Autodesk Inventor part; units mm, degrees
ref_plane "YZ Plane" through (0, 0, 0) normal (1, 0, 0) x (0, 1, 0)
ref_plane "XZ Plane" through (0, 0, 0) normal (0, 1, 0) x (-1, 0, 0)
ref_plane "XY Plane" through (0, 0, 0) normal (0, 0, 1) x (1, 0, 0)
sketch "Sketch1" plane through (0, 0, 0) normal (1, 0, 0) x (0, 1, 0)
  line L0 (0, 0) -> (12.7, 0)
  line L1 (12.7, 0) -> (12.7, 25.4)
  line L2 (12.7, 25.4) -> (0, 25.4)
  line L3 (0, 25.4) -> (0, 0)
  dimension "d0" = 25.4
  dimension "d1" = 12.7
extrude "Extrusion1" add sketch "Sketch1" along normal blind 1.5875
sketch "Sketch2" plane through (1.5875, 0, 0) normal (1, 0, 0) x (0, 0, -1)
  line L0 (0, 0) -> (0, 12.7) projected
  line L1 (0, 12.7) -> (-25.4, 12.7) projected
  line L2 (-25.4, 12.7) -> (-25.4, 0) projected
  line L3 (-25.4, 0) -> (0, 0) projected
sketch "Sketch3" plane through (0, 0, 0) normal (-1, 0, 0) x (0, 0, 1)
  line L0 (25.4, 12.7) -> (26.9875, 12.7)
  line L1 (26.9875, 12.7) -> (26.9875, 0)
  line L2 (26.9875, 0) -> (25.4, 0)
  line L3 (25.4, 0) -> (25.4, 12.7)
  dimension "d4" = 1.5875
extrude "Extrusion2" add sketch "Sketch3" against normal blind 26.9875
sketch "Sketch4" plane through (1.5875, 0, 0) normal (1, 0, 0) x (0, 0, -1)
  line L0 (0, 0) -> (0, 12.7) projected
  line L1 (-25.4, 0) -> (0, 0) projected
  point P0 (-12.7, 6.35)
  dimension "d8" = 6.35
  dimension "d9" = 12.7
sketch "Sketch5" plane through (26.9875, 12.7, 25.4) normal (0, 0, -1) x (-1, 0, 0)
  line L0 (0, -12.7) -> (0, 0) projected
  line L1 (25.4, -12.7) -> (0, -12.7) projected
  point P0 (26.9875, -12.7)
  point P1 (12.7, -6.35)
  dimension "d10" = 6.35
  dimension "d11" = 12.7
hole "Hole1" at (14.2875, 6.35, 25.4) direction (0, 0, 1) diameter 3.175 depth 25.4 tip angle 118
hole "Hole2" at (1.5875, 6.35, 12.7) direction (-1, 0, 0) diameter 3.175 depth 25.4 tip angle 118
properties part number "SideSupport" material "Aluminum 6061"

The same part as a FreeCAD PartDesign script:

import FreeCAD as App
import Part
import Sketcher

V = App.Vector
Q = App.Units.Quantity


def add_polygon(sketch, points):
    """Adds a closed chain of lines whose ends are joined by coincident constraints."""
    first, n = sketch.GeometryCount, len(points)
    for a, b in zip(points, points[1:] + points[:1]):
        sketch.addGeometry(Part.LineSegment(App.Vector(*a, 0), App.Vector(*b, 0)), False)
    for i in range(n):
        sketch.addConstraint(Sketcher.Constraint("Coincident", first + i, 2, first + (i + 1) % n, 1))

doc = App.newDocument("Part")
body = doc.addObject("PartDesign::Body", "Body")

# Sketch on YZ plane
sketch1 = doc.addObject("Sketcher::SketchObject", "Sketch")
body.addObject(sketch1)
sketch1.AttachmentSupport = (doc.YZ_Plane, [""])
sketch1.MapMode = "FlatFace"
add_polygon(sketch1, [(0, 25), (0, 0), (13, 0), (13, 25)])  # lines 0-3
sketch1.addConstraint(Sketcher.Constraint("Vertical", 0))
sketch1.addConstraint(Sketcher.Constraint("Horizontal", 1))
sketch1.addConstraint(Sketcher.Constraint("Vertical", 2))
sketch1.addConstraint(Sketcher.Constraint("Horizontal", 3))
sketch1.addConstraint(Sketcher.Constraint("Coincident", 0, 2, -1, 1))
sketch1.addConstraint(Sketcher.Constraint("DistanceY", 0, 2, 0, 1, Q("1 in")))
sketch1.addConstraint(Sketcher.Constraint("DistanceX", 1, 1, 1, 2, Q("0.5 in")))
pad1 = doc.addObject("PartDesign::Pad", "Pad")
body.addObject(pad1)
pad1.Profile = sketch1
pad1.Length = Q("0.0625 in")

# Sketch on YZ plane
sketch2 = doc.addObject("Sketcher::SketchObject", "Sketch001")
body.addObject(sketch2)
sketch2.AttachmentSupport = (doc.YZ_Plane, [""])
sketch2.MapMode = "FlatFace"
add_polygon(sketch2, [(12.7, 27), (12.7, 25.4), (0, 25.4), (0, 27)])  # lines 0-3
sketch2.addConstraint(Sketcher.Constraint("Vertical", 0))
sketch2.addConstraint(Sketcher.Constraint("Horizontal", 1))
sketch2.addConstraint(Sketcher.Constraint("Vertical", 2))
sketch2.addConstraint(Sketcher.Constraint("Horizontal", 3))
sketch2.addConstraint(Sketcher.Constraint("PointOnObject", 1, 2, -2))
sketch2.addConstraint(Sketcher.Constraint("DistanceY", 0, 2, 0, 1, Q("0.0625 in")))
sketch2.addConstraint(Sketcher.Constraint("DistanceX", 1, 2, 1, 1, Q("0.5 in")))
sketch2.addConstraint(Sketcher.Constraint("DistanceY", -1, 1, 0, 2, Q("1 in")))
pad2 = doc.addObject("PartDesign::Pad", "Pad001")
body.addObject(pad2)
pad2.Profile = sketch2
pad2.Length = Q("1.0625 in")

# Sketch on XY plane
sketch3 = doc.addObject("Sketcher::SketchObject", "Sketch002")
body.addObject(sketch3)
sketch3.AttachmentSupport = (doc.XY_Plane, [""])
sketch3.MapMode = "FlatFace"
sketch3.AttachmentOffset = App.Placement(V(0, 0, 1 * 25.4), App.Rotation())
sketch3.addGeometry(Part.Circle(V(14.3, 6.3, 0), V(0, 0, 1), 1.6), False)
sketch3.addConstraint(Sketcher.Constraint("Diameter", 0, Q("0.125 in")))
sketch3.addConstraint(Sketcher.Constraint("DistanceY", -1, 1, 0, 3, Q("0.25 in")))
sketch3.addConstraint(Sketcher.Constraint("DistanceX", -1, 1, 0, 3, Q("0.5625 in")))
doc.recompute()
hole = doc.addObject("PartDesign::Hole", "Hole")
body.addObject(hole)
hole.Profile = sketch3
hole.ThreadType = "None"
hole.Diameter = Q("0.125 in")
hole.DepthType = "Dimension"
hole.Depth = Q("1 in")
hole.DrillPoint = "Angled"
hole.DrillPointAngle = 118
hole.Reversed = True

# Sketch on YZ plane
sketch4 = doc.addObject("Sketcher::SketchObject", "Sketch003")
body.addObject(sketch4)
sketch4.AttachmentSupport = (doc.YZ_Plane, [""])
sketch4.MapMode = "FlatFace"
sketch4.AttachmentOffset = App.Placement(V(0, 0, 0.0625 * 25.4), App.Rotation())
sketch4.addGeometry(Part.Circle(V(6.3, 12.7, 0), V(0, 0, 1), 1.6), False)
sketch4.addConstraint(Sketcher.Constraint("Diameter", 0, Q("0.125 in")))
sketch4.addConstraint(Sketcher.Constraint("DistanceY", -1, 1, 0, 3, Q("0.5 in")))
sketch4.addConstraint(Sketcher.Constraint("DistanceX", -1, 1, 0, 3, Q("0.25 in")))
doc.recompute()
hole2 = doc.addObject("PartDesign::Hole", "Hole001")
body.addObject(hole2)
hole2.Profile = sketch4
hole2.ThreadType = "None"
hole2.Diameter = Q("0.125 in")
hole2.DepthType = "Dimension"
hole2.Depth = Q("1 in")
hole2.DrillPoint = "Angled"
hole2.DrillPointAngle = 118

doc.recompute()
